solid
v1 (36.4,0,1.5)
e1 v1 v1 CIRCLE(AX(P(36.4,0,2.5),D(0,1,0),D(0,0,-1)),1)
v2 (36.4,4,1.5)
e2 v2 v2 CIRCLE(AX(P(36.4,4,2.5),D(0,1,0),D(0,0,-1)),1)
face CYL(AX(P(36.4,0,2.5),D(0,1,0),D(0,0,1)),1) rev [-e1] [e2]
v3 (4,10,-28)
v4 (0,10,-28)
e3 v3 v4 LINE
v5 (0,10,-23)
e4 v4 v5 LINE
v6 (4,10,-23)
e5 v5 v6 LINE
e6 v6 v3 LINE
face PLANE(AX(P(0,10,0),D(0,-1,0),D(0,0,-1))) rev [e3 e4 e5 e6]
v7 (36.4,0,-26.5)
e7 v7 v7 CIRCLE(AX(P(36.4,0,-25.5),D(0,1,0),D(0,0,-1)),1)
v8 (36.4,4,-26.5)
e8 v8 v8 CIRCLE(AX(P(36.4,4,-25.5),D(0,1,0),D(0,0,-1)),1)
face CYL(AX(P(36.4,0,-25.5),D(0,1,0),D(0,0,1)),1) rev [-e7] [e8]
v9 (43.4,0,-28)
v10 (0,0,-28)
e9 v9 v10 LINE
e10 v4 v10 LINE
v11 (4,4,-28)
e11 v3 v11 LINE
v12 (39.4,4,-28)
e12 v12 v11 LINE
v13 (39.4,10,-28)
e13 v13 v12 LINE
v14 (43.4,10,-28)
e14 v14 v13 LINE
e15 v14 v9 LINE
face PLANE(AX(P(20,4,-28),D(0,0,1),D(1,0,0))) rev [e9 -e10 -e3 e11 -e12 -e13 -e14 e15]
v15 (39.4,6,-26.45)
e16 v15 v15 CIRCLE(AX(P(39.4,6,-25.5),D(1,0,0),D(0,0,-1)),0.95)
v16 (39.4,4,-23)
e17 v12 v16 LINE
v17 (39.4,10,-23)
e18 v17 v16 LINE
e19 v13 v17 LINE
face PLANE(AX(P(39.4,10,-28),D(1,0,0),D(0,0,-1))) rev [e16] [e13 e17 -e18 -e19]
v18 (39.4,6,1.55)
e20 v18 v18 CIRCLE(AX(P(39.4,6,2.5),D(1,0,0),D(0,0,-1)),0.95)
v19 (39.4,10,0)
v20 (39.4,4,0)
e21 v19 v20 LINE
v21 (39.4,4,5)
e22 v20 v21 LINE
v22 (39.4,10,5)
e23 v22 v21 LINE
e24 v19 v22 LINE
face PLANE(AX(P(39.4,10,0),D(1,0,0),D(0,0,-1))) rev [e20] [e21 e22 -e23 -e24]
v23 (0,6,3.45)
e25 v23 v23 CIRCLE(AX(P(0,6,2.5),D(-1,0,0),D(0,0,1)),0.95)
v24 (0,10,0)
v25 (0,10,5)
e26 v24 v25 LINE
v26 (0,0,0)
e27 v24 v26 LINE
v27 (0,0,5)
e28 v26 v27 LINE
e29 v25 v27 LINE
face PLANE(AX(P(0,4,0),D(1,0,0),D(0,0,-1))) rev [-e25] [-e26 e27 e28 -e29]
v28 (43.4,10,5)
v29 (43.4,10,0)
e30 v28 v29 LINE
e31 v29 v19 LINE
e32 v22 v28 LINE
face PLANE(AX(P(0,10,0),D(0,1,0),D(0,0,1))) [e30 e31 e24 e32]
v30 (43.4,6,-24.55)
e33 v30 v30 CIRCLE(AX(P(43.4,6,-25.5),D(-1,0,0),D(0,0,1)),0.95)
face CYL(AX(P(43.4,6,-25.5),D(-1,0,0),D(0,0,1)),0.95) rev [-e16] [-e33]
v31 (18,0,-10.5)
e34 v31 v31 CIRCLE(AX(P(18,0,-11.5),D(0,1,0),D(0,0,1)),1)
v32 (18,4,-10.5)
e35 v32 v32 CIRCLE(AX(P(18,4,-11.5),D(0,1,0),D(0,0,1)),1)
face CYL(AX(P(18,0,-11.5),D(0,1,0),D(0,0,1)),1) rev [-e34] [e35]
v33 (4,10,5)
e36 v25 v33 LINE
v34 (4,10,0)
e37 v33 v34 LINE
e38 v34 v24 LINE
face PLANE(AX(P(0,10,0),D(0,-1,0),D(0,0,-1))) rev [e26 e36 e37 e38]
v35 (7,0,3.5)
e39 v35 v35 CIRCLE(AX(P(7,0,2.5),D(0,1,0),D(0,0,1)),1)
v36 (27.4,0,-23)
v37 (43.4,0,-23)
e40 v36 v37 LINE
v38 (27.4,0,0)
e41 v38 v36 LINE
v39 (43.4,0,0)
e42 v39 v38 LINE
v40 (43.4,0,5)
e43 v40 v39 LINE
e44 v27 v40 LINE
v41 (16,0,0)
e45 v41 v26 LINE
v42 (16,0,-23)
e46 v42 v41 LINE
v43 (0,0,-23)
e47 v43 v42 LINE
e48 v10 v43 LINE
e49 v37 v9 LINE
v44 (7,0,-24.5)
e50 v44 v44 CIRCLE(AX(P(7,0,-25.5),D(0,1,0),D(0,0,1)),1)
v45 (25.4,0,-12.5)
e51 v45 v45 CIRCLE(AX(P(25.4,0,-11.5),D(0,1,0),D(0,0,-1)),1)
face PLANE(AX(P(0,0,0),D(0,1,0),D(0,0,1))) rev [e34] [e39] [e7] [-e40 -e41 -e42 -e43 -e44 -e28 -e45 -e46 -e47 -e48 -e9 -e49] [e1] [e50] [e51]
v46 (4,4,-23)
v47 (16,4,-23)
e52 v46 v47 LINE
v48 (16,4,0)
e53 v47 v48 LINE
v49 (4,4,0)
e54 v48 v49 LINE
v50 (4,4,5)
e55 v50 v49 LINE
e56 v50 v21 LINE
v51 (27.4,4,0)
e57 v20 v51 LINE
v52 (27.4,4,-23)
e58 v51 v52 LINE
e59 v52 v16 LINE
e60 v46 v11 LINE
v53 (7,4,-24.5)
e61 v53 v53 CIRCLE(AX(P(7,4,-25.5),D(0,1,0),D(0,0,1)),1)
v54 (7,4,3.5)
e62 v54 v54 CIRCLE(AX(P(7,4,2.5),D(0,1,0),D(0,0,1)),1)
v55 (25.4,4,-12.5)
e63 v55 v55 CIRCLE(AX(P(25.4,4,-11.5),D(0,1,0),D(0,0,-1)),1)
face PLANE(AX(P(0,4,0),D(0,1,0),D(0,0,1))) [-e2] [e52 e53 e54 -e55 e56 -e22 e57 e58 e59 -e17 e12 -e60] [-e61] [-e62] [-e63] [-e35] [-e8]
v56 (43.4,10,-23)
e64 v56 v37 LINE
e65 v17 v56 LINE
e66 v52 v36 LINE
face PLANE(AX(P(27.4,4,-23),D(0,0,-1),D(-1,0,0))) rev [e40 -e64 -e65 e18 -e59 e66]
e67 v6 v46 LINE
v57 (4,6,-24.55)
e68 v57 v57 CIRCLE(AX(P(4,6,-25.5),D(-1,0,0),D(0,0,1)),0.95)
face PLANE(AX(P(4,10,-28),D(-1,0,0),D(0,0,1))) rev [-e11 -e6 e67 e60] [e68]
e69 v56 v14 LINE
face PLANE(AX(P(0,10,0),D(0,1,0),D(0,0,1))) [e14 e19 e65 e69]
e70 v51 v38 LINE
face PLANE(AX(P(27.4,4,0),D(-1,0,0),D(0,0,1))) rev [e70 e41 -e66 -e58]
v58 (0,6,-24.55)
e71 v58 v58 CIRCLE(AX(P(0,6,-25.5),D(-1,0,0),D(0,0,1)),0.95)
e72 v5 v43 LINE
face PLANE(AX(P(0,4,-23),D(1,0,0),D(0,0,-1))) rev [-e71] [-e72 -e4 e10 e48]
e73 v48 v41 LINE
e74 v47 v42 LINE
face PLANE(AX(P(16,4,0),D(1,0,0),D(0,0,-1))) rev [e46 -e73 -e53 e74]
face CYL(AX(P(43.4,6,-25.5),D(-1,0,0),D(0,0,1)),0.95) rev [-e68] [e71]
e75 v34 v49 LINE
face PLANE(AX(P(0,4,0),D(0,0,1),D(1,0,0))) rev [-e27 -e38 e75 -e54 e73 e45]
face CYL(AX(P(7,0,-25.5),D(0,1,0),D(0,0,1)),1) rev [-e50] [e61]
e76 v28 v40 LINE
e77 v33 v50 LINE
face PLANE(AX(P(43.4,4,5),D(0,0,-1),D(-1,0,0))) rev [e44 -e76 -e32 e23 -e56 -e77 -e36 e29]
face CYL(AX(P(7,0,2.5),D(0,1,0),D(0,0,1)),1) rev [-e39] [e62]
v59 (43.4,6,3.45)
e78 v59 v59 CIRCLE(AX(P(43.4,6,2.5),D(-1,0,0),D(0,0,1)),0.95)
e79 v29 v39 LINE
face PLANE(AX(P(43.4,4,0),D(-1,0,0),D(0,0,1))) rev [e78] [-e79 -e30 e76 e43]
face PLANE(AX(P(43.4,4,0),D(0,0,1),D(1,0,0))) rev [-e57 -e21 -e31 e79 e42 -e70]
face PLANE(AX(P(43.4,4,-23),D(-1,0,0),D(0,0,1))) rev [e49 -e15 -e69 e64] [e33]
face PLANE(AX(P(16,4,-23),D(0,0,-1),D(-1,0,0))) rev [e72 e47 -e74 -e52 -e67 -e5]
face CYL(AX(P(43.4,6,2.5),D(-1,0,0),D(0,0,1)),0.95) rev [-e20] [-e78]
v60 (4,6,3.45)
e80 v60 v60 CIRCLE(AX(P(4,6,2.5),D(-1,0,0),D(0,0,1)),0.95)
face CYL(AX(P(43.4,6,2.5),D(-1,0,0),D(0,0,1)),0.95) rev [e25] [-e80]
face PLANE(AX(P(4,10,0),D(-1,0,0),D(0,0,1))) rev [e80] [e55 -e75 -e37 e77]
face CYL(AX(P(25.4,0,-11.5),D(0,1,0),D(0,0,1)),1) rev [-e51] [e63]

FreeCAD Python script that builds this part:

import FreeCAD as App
import Part
import Sketcher

V = App.Vector
Q = App.Units.Quantity


def add_polygon(sketch, points):
    """Adds a closed chain of lines whose ends are joined by coincident constraints."""
    first, n = sketch.GeometryCount, len(points)
    for a, b in zip(points, points[1:] + points[:1]):
        sketch.addGeometry(Part.LineSegment(App.Vector(*a, 0), App.Vector(*b, 0)), False)
    for i in range(n):
        sketch.addConstraint(Sketcher.Constraint("Coincident", first + i, 2, first + (i + 1) % n, 1))

doc = App.newDocument("Part")
params = doc.addObject("Spreadsheet::Sheet", "Params")
for row, (alias, value) in enumerate([
    ("sketch1_width", "16 mm"),
    ("sketch1_height", "5 mm"),
    ("sketch1_height2", "23 mm"),
    ("sketch1_width2", "43.4 mm"),
    ("pad1_length", "4 mm"),
    ("sketch2_width", "4 mm"),
    ("sketch2_height", "5 mm"),
    ("pad2_length", "6 mm"),
    ("sketch3_diameter", "1.9 mm"),
    ("sketch4_diameter", "2 mm"),
], start=1):
    params.set(f"A{row}", alias)
    params.set(f"B{row}", "=" + value)
    params.setAlias(f"B{row}", alias)

body = doc.addObject("PartDesign::Body", "Body")

sketch1 = body.newObject("Sketcher::SketchObject", "Sketch")
sketch1.AttachmentSupport = (doc.getObject("XZ_Plane"), [""])
sketch1.MapMode = "FlatFace"
add_polygon(sketch1, [(0, 0), (0, 5), (43.4, 5), (43.4, 0), (27.4, 0), (27.4, -23), (43.4, -23), (43.4, -28), (0, -28), (0, -23), (16, -23), (16, 0)])
sketch1.addConstraint(Sketcher.Constraint("Vertical", 0))
sketch1.addConstraint(Sketcher.Constraint("Horizontal", 1))
sketch1.addConstraint(Sketcher.Constraint("Vertical", 2))
sketch1.addConstraint(Sketcher.Constraint("Horizontal", 3))
sketch1.addConstraint(Sketcher.Constraint("Vertical", 4))
sketch1.addConstraint(Sketcher.Constraint("Horizontal", 5))
sketch1.addConstraint(Sketcher.Constraint("Vertical", 6))
sketch1.addConstraint(Sketcher.Constraint("Horizontal", 7))
sketch1.addConstraint(Sketcher.Constraint("Vertical", 8))
sketch1.addConstraint(Sketcher.Constraint("Horizontal", 9))
sketch1.addConstraint(Sketcher.Constraint("Vertical", 10))
sketch1.addConstraint(Sketcher.Constraint("Horizontal", 11))
sketch1.addConstraint(Sketcher.Constraint("Coincident", 11, 2, -1, 1))
sketch1.addConstraint(Sketcher.Constraint("PointOnObject", 2, 2, -1))
sketch1.addConstraint(Sketcher.Constraint("PointOnObject", 7, 2, -2))
sketch1.addConstraint(Sketcher.Constraint("Horizontal", 5, 2, 8, 2))
sketch1.addConstraint(Sketcher.Constraint("Vertical", 2, 2, 5, 2))
sketch1.addConstraint(Sketcher.Constraint("Equal", 5, 9))
sketch1.addConstraint(Sketcher.Constraint("Equal", 2, 6))
sketch1.addConstraint(Sketcher.Constraint("DistanceX", 3, 2, 3, 1, Q("16 mm")))
sketch1.addConstraint(Sketcher.Constraint("DistanceY", 0, 1, 0, 2, Q("5 mm")))
sketch1.addConstraint(Sketcher.Constraint("DistanceY", 4, 2, 4, 1, Q("23 mm")))
sketch1.addConstraint(Sketcher.Constraint("DistanceX", 1, 1, 1, 2, Q("43.4 mm")))
sketch1.setExpression("Constraints[31]", "Params.sketch1_width")
sketch1.setExpression("Constraints[32]", "Params.sketch1_height")
sketch1.setExpression("Constraints[33]", "Params.sketch1_height2")
sketch1.setExpression("Constraints[34]", "Params.sketch1_width2")
pad1 = body.newObject("PartDesign::Pad", "Pad")
pad1.Profile = sketch1
pad1.setExpression("Length", "Params.pad1_length")
pad1.Reversed = True

sketch2 = body.newObject("Sketcher::SketchObject", "Sketch001")
sketch2.AttachmentSupport = (doc.getObject("XZ_Plane"), [""])
sketch2.MapMode = "FlatFace"
sketch2.AttachmentOffset = App.Placement(V(0, 0, -4), App.Rotation())
add_polygon(sketch2, [(0, 0), (0, 5), (4, 5), (4, 0)])
add_polygon(sketch2, [(0, -28), (0, -23), (4, -23), (4, -28)])
add_polygon(sketch2, [(39.4, 0), (39.4, 5), (43.4, 5), (43.4, 0)])
add_polygon(sketch2, [(39.4, -28), (39.4, -23), (43.4, -23), (43.4, -28)])
sketch2.addConstraint(Sketcher.Constraint("Vertical", 0))
sketch2.addConstraint(Sketcher.Constraint("Horizontal", 1))
sketch2.addConstraint(Sketcher.Constraint("Vertical", 2))
sketch2.addConstraint(Sketcher.Constraint("Horizontal", 3))
sketch2.addConstraint(Sketcher.Constraint("Vertical", 4))
sketch2.addConstraint(Sketcher.Constraint("Horizontal", 5))
sketch2.addConstraint(Sketcher.Constraint("Vertical", 6))
sketch2.addConstraint(Sketcher.Constraint("Horizontal", 7))
sketch2.addConstraint(Sketcher.Constraint("Vertical", 8))
sketch2.addConstraint(Sketcher.Constraint("Horizontal", 9))
sketch2.addConstraint(Sketcher.Constraint("Vertical", 10))
sketch2.addConstraint(Sketcher.Constraint("Horizontal", 11))
sketch2.addConstraint(Sketcher.Constraint("Vertical", 12))
sketch2.addConstraint(Sketcher.Constraint("Horizontal", 13))
sketch2.addConstraint(Sketcher.Constraint("Vertical", 14))
sketch2.addConstraint(Sketcher.Constraint("Horizontal", 15))
sketch2.addConstraint(Sketcher.Constraint("Coincident", 3, 2, -1, 1))
sketch2.addConstraint(Sketcher.Constraint("PointOnObject", 4, 2, -2))
sketch2.addConstraint(Sketcher.Constraint("PointOnObject", 10, 2, -1))
sketch2.addConstraint(Sketcher.Constraint("Horizontal", 1, 2, 8, 2))
sketch2.addConstraint(Sketcher.Constraint("Horizontal", 5, 2, 12, 2))
sketch2.addConstraint(Sketcher.Constraint("Horizontal", 7, 2, 14, 2))
sketch2.addConstraint(Sketcher.Constraint("Vertical", 2, 2, 5, 2))
sketch2.addConstraint(Sketcher.Constraint("Vertical", 11, 2, 12, 2))
sketch2.addConstraint(Sketcher.Constraint("Vertical", 10, 2, 13, 2))
sketch2.addConstraint(Sketcher.Constraint("Equal", 7, 9))
sketch2.addConstraint(Sketcher.Constraint("Equal", 2, 4))
sketch2.addConstraint(Sketcher.Constraint("DistanceX", 1, 1, 1, 2, Q("4 mm")))
sketch2.addConstraint(Sketcher.Constraint("DistanceY", 0, 1, 0, 2, Q("5 mm")))
sketch2.addConstraint(Sketcher.Constraint("DistanceY", 4, 2, -1, 1, Q("23 mm")))
sketch2.addConstraint(Sketcher.Constraint("DistanceX", -1, 1, 8, 2, Q("39.4 mm")))
sketch2.setExpression("Constraints[43]", "Params.sketch2_width")
sketch2.setExpression("Constraints[44]", "Params.sketch2_height")
pad2 = body.newObject("PartDesign::Pad", "Pad001")
pad2.Profile = sketch2
pad2.setExpression("Length", "Params.pad2_length")
pad2.Reversed = True

sketch3 = body.newObject("Sketcher::SketchObject", "Sketch002")
sketch3.AttachmentSupport = (doc.getObject("YZ_Plane"), [""])
sketch3.MapMode = "FlatFace"
sketch3.addGeometry(Part.Circle(V(6, 2.5, 0), V(0, 0, 1), 0.95), False)
sketch3.addGeometry(Part.Circle(V(6, -25.5, 0), V(0, 0, 1), 0.95), False)
sketch3.addConstraint(Sketcher.Constraint("Equal", 0, 1))
sketch3.addConstraint(Sketcher.Constraint("Vertical", 0, 3, 1, 3))
sketch3.addConstraint(Sketcher.Constraint("Diameter", 0, Q("1.9 mm")))
sketch3.addConstraint(Sketcher.Constraint("DistanceX", -1, 1, 0, 3, Q("6 mm")))
sketch3.addConstraint(Sketcher.Constraint("DistanceY", 1, 3, 0, 3, Q("28 mm")))
sketch3.addConstraint(Sketcher.Constraint("DistanceY", -1, 1, 0, 3, Q("2.5 mm")))
sketch3.setExpression("Constraints[2]", "Params.sketch3_diameter")
pocket1 = body.newObject("PartDesign::Pocket", "Pocket")
pocket1.Profile = sketch3
pocket1.Type = "ThroughAll"
pocket1.Reversed = True

sketch4 = body.newObject("Sketcher::SketchObject", "Sketch003")
sketch4.AttachmentSupport = (doc.getObject("XZ_Plane"), [""])
sketch4.MapMode = "FlatFace"
sketch4.AttachmentOffset = App.Placement(V(0, 0, -4), App.Rotation())
sketch4.addGeometry(Part.Circle(V(7, 2.5, 0), V(0, 0, 1), 1), False)
sketch4.addGeometry(Part.Circle(V(7, -25.5, 0), V(0, 0, 1), 1), False)
sketch4.addGeometry(Part.Circle(V(18, -11.5, 0), V(0, 0, 1), 1), False)
sketch4.addGeometry(Part.Circle(V(36.4, 2.5, 0), V(0, 0, 1), 1), False)
sketch4.addGeometry(Part.Circle(V(36.4, -25.5, 0), V(0, 0, 1), 1), False)
sketch4.addGeometry(Part.Circle(V(25.4, -11.5, 0), V(0, 0, 1), 1), False)
sketch4.addConstraint(Sketcher.Constraint("Equal", 0, 1))
sketch4.addConstraint(Sketcher.Constraint("Equal", 1, 2))
sketch4.addConstraint(Sketcher.Constraint("Equal", 2, 3))
sketch4.addConstraint(Sketcher.Constraint("Equal", 3, 4))
sketch4.addConstraint(Sketcher.Constraint("Equal", 4, 5))
sketch4.addConstraint(Sketcher.Constraint("Horizontal", 0, 3, 3, 3))
sketch4.addConstraint(Sketcher.Constraint("Horizontal", 1, 3, 4, 3))
sketch4.addConstraint(Sketcher.Constraint("Horizontal", 2, 3, 5, 3))
sketch4.addConstraint(Sketcher.Constraint("Vertical", 0, 3, 1, 3))
sketch4.addConstraint(Sketcher.Constraint("Vertical", 3, 3, 4, 3))
sketch4.addConstraint(Sketcher.Constraint("Diameter", 0, Q("2 mm")))
sketch4.addConstraint(Sketcher.Constraint("DistanceX", -1, 1, 0, 3, Q("7 mm")))
sketch4.addConstraint(Sketcher.Constraint("DistanceX", -1, 1, 2, 3, Q("18 mm")))
sketch4.addConstraint(Sketcher.Constraint("DistanceY", 1, 3, 0, 3, Q("28 mm")))
sketch4.addConstraint(Sketcher.Constraint("DistanceY", 2, 3, 0, 3, Q("14 mm")))
sketch4.addConstraint(Sketcher.Constraint("DistanceX", 5, 3, 3, 3, Q("11 mm")))
sketch4.addConstraint(Sketcher.Constraint("DistanceY", -1, 1, 0, 3, Q("2.5 mm")))
sketch4.addConstraint(Sketcher.Constraint("DistanceX", -1, 1, 3, 3, Q("36.4 mm")))
sketch4.setExpression("Constraints[10]", "Params.sketch4_diameter")
pocket2 = body.newObject("PartDesign::Pocket", "Pocket001")
pocket2.Profile = sketch4
pocket2.Type = "ThroughAll"
pocket2.Reversed = True

doc.recompute()
